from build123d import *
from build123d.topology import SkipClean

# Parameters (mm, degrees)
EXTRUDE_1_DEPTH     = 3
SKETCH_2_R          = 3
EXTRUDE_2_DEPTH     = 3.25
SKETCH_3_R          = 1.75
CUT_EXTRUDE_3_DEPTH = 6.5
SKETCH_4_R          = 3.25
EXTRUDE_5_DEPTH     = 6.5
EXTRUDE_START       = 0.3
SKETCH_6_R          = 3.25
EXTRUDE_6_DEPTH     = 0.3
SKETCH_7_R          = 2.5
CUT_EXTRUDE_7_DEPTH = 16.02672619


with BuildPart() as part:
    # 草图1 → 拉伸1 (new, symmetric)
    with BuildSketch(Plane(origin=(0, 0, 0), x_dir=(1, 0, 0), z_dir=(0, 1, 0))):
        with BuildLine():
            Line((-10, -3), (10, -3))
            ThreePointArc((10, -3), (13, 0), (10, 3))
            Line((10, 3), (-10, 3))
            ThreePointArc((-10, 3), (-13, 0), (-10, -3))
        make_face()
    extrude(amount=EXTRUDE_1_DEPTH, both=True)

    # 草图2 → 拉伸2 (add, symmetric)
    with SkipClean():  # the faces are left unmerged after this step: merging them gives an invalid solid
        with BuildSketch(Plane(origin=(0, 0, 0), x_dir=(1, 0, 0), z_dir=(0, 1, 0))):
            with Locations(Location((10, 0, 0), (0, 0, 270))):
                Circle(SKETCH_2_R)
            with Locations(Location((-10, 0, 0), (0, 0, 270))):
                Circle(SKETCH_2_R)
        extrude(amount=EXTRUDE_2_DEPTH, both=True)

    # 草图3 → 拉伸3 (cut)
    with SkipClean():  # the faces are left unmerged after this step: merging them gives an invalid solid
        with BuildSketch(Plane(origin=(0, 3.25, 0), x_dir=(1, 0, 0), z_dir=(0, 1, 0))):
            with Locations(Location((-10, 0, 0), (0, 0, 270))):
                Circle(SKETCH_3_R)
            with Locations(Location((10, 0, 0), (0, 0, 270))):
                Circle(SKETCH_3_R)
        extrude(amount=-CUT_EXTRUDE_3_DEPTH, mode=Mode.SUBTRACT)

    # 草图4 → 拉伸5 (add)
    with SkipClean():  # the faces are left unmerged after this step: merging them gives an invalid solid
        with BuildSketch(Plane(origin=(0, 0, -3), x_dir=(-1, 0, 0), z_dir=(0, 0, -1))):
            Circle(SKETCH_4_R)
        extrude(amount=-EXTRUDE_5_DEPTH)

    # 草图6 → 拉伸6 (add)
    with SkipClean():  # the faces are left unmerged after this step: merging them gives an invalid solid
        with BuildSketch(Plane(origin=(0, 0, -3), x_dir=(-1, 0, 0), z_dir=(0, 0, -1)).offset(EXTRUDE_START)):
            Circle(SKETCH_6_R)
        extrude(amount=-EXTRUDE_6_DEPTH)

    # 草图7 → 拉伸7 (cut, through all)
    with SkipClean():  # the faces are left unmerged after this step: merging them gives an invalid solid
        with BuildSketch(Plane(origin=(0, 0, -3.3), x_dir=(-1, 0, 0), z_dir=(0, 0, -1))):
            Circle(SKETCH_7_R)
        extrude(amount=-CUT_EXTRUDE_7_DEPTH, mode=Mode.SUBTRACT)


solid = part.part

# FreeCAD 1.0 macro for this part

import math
import FreeCAD as App
import Part
import Sketcher

V = App.Vector
Q = App.Units.Quantity

doc = App.newDocument("Part")
body = doc.addObject("PartDesign::Body", "Body")

# Sketch on XZ plane
sketch1 = body.newObject("Sketcher::SketchObject", "Sketch")
sketch1.AttachmentSupport = (doc.getObject("XZ_Plane"), [""])
sketch1.MapMode = "FlatFace"
sketch1.addGeometry(Part.LineSegment(V(-10, 3, 0), V(10, 3, 0)), False)
sketch1.addGeometry(Part.ArcOfCircle(Part.Circle(V(10, 0, 0), V(0, 0, 1), 3), math.radians(-90), math.radians(90)), False)
sketch1.addGeometry(Part.LineSegment(V(10, -3, 0), V(-10, -3, 0)), False)
sketch1.addGeometry(Part.ArcOfCircle(Part.Circle(V(-10, 0, 0), V(0, 0, 1), 3), math.radians(90), math.radians(270)), False)
sketch1.addConstraint(Sketcher.Constraint("Tangent", 0, 2, 1, 2))
sketch1.addConstraint(Sketcher.Constraint("Tangent", 1, 1, 2, 1))
sketch1.addConstraint(Sketcher.Constraint("Tangent", 2, 2, 3, 2))
sketch1.addConstraint(Sketcher.Constraint("Tangent", 3, 1, 0, 1))
sketch1.addConstraint(Sketcher.Constraint("Horizontal", 0))
sketch1.addConstraint(Sketcher.Constraint("Horizontal", 2))
sketch1.addConstraint(Sketcher.Constraint("Symmetric", 1, 3, 3, 3, -1, 1))
sketch1.addConstraint(Sketcher.Constraint("Radius", 1, Q("3 mm")))
sketch1.addConstraint(Sketcher.Constraint("DistanceX", 0, 1, 0, 2, Q("20 mm")))
pad1 = body.newObject("PartDesign::Pad", "Pad")
pad1.Profile = sketch1
pad1.Length = 6
pad1.Midplane = True

# Sketch on XZ plane
sketch2 = body.newObject("Sketcher::SketchObject", "Sketch001")
sketch2.AttachmentSupport = (doc.getObject("XZ_Plane"), [""])
sketch2.MapMode = "FlatFace"
sketch2.addGeometry(Part.Circle(V(10, 0, 0), V(0, 0, 1), 3), False)
sketch2.addGeometry(Part.Circle(V(-10, 0, 0), V(0, 0, 1), 3), False)
sketch2.addConstraint(Sketcher.Constraint("Equal", 0, 1))
sketch2.addConstraint(Sketcher.Constraint("Symmetric", 0, 3, 1, 3, -1, 1))
sketch2.addConstraint(Sketcher.Constraint("PointOnObject", 0, 3, -1))
sketch2.addConstraint(Sketcher.Constraint("Diameter", 0, Q("6 mm")))
sketch2.addConstraint(Sketcher.Constraint("DistanceX", -1, 1, 0, 3, Q("10 mm")))
pad2 = body.newObject("PartDesign::Pad", "Pad001")
pad2.Profile = sketch2
pad2.Length = 6.5
pad2.Midplane = True

# Sketch on XZ plane
sketch3 = body.newObject("Sketcher::SketchObject", "Sketch002")
sketch3.AttachmentSupport = (doc.getObject("XZ_Plane"), [""])
sketch3.MapMode = "FlatFace"
sketch3.AttachmentOffset = App.Placement(V(0, 0, -3.25), App.Rotation())
sketch3.addGeometry(Part.Circle(V(-10, 0, 0), V(0, 0, 1), 1.8), False)
sketch3.addGeometry(Part.Circle(V(10, 0, 0), V(0, 0, 1), 1.8), False)
sketch3.addConstraint(Sketcher.Constraint("Equal", 0, 1))
sketch3.addConstraint(Sketcher.Constraint("Symmetric", 0, 3, 1, 3, -1, 1))
sketch3.addConstraint(Sketcher.Constraint("PointOnObject", 0, 3, -1))
sketch3.addConstraint(Sketcher.Constraint("Diameter", 0, Q("3.5 mm")))
sketch3.addConstraint(Sketcher.Constraint("DistanceX", 0, 3, -1, 1, Q("10 mm")))
pocket1 = body.newObject("PartDesign::Pocket", "Pocket")
pocket1.Profile = sketch3
pocket1.Length = 6.5
pocket1.Reversed = True

# Sketch on XY plane
sketch4 = body.newObject("Sketcher::SketchObject", "Sketch003")
sketch4.AttachmentSupport = (doc.getObject("XY_Plane"), [""])
sketch4.MapMode = "FlatFace"
sketch4.AttachmentOffset = App.Placement(V(0, 0, -3), App.Rotation())
sketch4.addGeometry(Part.Circle(V(0, 0, 0), V(0, 0, 1), 3.2), False)
sketch4.addConstraint(Sketcher.Constraint("Coincident", 0, 3, -1, 1))
sketch4.addConstraint(Sketcher.Constraint("Diameter", 0, Q("6.5 mm")))
pad3 = body.newObject("PartDesign::Pad", "Pad002")
pad3.Profile = sketch4
pad3.Length = 6.5

# Sketch on XY plane
sketch5 = body.newObject("Sketcher::SketchObject", "Sketch004")
sketch5.AttachmentSupport = (doc.getObject("XY_Plane"), [""])
sketch5.MapMode = "FlatFace"
sketch5.AttachmentOffset = App.Placement(V(0, 0, -3.3), App.Rotation())
sketch5.addGeometry(Part.Circle(V(0, 0, 0), V(0, 0, 1), 3.2), False)
sketch5.addConstraint(Sketcher.Constraint("Coincident", 0, 3, -1, 1))
sketch5.addConstraint(Sketcher.Constraint("Diameter", 0, Q("6.5 mm")))
pad4 = body.newObject("PartDesign::Pad", "Pad003")
pad4.Profile = sketch5
pad4.Length = 0.3

# Sketch on XY plane
sketch6 = body.newObject("Sketcher::SketchObject", "Sketch005")
sketch6.AttachmentSupport = (doc.getObject("XY_Plane"), [""])
sketch6.MapMode = "FlatFace"
sketch6.AttachmentOffset = App.Placement(V(0, 0, -3.3), App.Rotation())
sketch6.addGeometry(Part.Circle(V(0, 0, 0), V(0, 0, 1), 2.5), False)
sketch6.addConstraint(Sketcher.Constraint("Coincident", 0, 3, -1, 1))
sketch6.addConstraint(Sketcher.Constraint("Diameter", 0, Q("5 mm")))
pocket2 = body.newObject("PartDesign::Pocket", "Pocket001")
pocket2.Profile = sketch6
pocket2.Type = "ThroughAll"
pocket2.Reversed = True

doc.recompute()
